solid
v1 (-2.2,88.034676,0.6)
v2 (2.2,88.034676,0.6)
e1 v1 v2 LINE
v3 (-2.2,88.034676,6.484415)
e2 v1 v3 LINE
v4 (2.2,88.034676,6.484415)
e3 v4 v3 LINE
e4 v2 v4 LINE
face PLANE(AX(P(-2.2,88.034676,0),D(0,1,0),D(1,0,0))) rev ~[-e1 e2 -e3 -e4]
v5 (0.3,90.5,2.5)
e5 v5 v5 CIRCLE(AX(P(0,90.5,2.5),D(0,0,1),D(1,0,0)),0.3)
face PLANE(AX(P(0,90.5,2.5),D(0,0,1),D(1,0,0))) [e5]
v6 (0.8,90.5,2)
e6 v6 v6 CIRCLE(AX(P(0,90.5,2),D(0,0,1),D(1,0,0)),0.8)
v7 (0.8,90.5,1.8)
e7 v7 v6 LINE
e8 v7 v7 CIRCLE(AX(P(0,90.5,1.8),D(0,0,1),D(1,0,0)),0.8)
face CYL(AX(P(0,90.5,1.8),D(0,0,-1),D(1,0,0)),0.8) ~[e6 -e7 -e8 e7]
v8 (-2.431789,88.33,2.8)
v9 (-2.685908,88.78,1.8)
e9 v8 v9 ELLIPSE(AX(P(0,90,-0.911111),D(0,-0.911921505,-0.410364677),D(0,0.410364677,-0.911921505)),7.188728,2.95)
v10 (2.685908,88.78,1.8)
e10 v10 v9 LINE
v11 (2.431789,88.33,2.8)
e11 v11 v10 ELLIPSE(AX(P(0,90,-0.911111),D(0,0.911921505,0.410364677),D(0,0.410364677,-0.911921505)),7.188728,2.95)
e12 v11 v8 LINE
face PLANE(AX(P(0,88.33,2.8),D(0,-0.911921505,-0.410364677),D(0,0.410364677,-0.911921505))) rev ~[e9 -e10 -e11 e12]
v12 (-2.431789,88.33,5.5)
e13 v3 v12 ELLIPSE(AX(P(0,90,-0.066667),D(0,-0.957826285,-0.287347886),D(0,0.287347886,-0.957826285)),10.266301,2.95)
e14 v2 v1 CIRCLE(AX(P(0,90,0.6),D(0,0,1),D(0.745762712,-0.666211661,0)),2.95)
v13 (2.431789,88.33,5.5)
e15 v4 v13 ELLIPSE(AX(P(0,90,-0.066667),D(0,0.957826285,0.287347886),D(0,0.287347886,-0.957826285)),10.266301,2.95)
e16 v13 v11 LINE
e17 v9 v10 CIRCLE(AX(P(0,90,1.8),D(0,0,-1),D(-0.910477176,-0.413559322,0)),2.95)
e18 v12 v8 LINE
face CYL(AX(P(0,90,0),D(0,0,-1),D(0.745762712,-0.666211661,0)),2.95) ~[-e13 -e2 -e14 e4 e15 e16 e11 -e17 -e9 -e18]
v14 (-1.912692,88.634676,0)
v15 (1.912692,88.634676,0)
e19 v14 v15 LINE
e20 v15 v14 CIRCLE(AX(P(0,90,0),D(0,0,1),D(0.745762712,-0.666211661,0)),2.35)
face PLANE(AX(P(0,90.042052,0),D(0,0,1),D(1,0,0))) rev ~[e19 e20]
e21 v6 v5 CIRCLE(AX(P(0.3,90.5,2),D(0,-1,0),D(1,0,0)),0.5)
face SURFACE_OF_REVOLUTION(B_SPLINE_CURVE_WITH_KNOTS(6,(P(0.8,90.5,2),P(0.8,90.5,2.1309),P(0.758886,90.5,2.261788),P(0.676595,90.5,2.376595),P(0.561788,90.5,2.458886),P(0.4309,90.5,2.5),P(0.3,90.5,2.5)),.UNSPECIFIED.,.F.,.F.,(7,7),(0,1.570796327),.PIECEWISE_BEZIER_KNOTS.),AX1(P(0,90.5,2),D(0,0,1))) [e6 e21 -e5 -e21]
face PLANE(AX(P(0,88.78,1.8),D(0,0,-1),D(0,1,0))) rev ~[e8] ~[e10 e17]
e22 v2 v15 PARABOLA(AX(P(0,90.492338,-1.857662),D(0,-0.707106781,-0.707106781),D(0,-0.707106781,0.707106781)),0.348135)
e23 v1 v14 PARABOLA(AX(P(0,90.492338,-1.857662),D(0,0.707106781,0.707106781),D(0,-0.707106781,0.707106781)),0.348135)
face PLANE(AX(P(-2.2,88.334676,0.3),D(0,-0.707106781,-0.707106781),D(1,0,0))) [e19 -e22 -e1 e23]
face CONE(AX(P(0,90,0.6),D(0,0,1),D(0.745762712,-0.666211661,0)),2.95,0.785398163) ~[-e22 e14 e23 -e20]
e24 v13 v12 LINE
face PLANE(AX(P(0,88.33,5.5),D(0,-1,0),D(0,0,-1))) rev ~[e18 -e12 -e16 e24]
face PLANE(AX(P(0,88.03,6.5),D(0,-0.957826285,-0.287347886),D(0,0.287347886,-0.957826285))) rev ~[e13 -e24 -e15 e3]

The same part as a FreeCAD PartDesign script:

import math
import FreeCAD as App
import Part
import Sketcher

V = App.Vector
Q = App.Units.Quantity


def edges_at(feature, points):
    """Names of the edges that pass closest to the given points."""
    edges = feature.Shape.Edges
    near = lambda p: min(range(len(edges)), key=lambda i: edges[i].distToShape(Part.Vertex(*p))[0])
    return sorted({f"Edge{near(p) + 1}" for p in points})

doc = App.newDocument("Part")
params = doc.addObject("Spreadsheet::Sheet", "Params")
for row, (alias, value) in enumerate([
    ("sketch1_radius", "2.95 mm"),
    ("sketch1_width", "4.4 mm"),
    ("pad1_length", "6.5 mm"),
    ("sketch2_height", "2.7 mm"),
    ("sketch2_height2", "4.7 mm"),
    ("sketch2_width", "5.22 mm"),
    ("sketch2_width2", "5.97 mm"),
    ("sketch3_diameter", "1.6 mm"),
    ("pad2_length", "0.7 mm"),
    ("fillet_radius", "0.5 mm"),
    ("chamfer_size", "0.6 mm"),
], start=1):
    params.set(f"A{row}", alias)
    params.set(f"B{row}", "=" + value)
    params.setAlias(f"B{row}", alias)

body = doc.addObject("PartDesign::Body", "Body")

sketch1 = body.newObject("Sketcher::SketchObject", "Sketch")
sketch1.AttachmentSupport = (doc.getObject("XY_Plane"), [""])
sketch1.MapMode = "FlatFace"
sketch1.addGeometry([
    Part.ArcOfCircle(Part.Circle(V(0, 0, 0), V(0, 0, 1), 3), math.radians(-42), math.radians(222)),
    Part.LineSegment(V(-2.2, -2, 0), V(2.2, -2, 0)),
], False)
sketch1.addConstraint([
    Sketcher.Constraint("Coincident", 0, 1, 1, 2),
    Sketcher.Constraint("Coincident", 1, 1, 0, 2),
    Sketcher.Constraint("Horizontal", 1),
    Sketcher.Constraint("Coincident", 0, 3, -1, 1),
    Sketcher.Constraint("Radius", 0, Q("2.95 mm")),
    Sketcher.Constraint("DistanceX", 1, 1, 1, 2, Q("4.4 mm")),
])
sketch1.setExpression("Constraints[4]", "Params.sketch1_radius")
sketch1.setExpression("Constraints[5]", "Params.sketch1_width")
pad1 = body.newObject("PartDesign::Pad", "Pad")
pad1.Profile = sketch1
pad1.setExpression("Length", "Params.pad1_length")

sketch2 = body.newObject("Sketcher::SketchObject", "Sketch001")
sketch2.AttachmentSupport = (doc.getObject("YZ_Plane"), [""])
sketch2.MapMode = "FlatFace"
sketch2.addGeometry([
    Part.LineSegment(V(-2, 6.5, 0), V(-1.7, 5.5, 0)),
    Part.LineSegment(V(-1.7, 5.5, 0), V(-1.7, 2.8, 0)),
    Part.LineSegment(V(-1.7, 2.8, 0), V(-1.2, 1.8, 0)),
    Part.LineSegment(V(-1.2, 1.8, 0), V(4, 1.8, 0)),
    Part.LineSegment(V(4, 1.8, 0), V(4, 6.5, 0)),
    Part.LineSegment(V(4, 6.5, 0), V(-2, 6.5, 0)),
], False)
sketch2.addConstraint([
    Sketcher.Constraint("Coincident", 0, 2, 1, 1),
    Sketcher.Constraint("Coincident", 1, 2, 2, 1),
    Sketcher.Constraint("Coincident", 2, 2, 3, 1),
    Sketcher.Constraint("Coincident", 3, 2, 4, 1),
    Sketcher.Constraint("Coincident", 4, 2, 5, 1),
    Sketcher.Constraint("Coincident", 5, 2, 0, 1),
    Sketcher.Constraint("Vertical", 1),
    Sketcher.Constraint("Horizontal", 3),
    Sketcher.Constraint("Vertical", 4),
    Sketcher.Constraint("Horizontal", 5),
    Sketcher.Constraint("DistanceY", 1, 2, 1, 1, Q("2.7 mm")),
    Sketcher.Constraint("DistanceY", 4, 1, 4, 2, Q("4.7 mm")),
    Sketcher.Constraint("DistanceX", -1, 1, 3, 2, Q("4 mm")),
    Sketcher.Constraint("DistanceY", 2, 2, 1, 2, Q("1 mm")),
    Sketcher.Constraint("DistanceX", 3, 1, 3, 2, Q("5.22 mm")),
    Sketcher.Constraint("DistanceX", 5, 2, 5, 1, Q("5.97 mm")),
    Sketcher.Constraint("DistanceY", -1, 1, 0, 2, Q("5.5 mm")),
    Sketcher.Constraint("DistanceX", 5, 2, 0, 2, Q("0.3 mm")),
])
sketch2.setExpression("Constraints[10]", "Params.sketch2_height")
sketch2.setExpression("Constraints[11]", "Params.sketch2_height2")
sketch2.setExpression("Constraints[14]", "Params.sketch2_width")
sketch2.setExpression("Constraints[15]", "Params.sketch2_width2")
pocket1 = body.newObject("PartDesign::Pocket", "Pocket")
pocket1.Profile = sketch2
pocket1.Type = "ThroughAll"
pocket1.Midplane = True

sketch3 = body.newObject("Sketcher::SketchObject", "Sketch002")
sketch3.AttachmentSupport = (doc.getObject("XY_Plane"), [""])
sketch3.MapMode = "FlatFace"
sketch3.AttachmentOffset = App.Placement(V(0, 0, 1.8), App.Rotation())
sketch3.addGeometry(Part.Circle(V(0, 0.5, 0), V(0, 0, 1), 0.8), False)
sketch3.addConstraint([
    Sketcher.Constraint("PointOnObject", 0, 3, -2),
    Sketcher.Constraint("Diameter", 0, Q("1.6 mm")),
    Sketcher.Constraint("DistanceY", -1, 1, 0, 3, Q("0.5 mm")),
])
sketch3.setExpression("Constraints[1]", "Params.sketch3_diameter")
pad2 = body.newObject("PartDesign::Pad", "Pad001")
pad2.Profile = sketch3
pad2.setExpression("Length", "Params.pad2_length")
doc.recompute()

fillet = body.newObject("PartDesign::Fillet", "Fillet")
fillet.Base = (pad2, edges_at(pad2, [(-0.8, 0.5, 2.5)]))
fillet.setExpression("Radius", "Params.fillet_radius")
doc.recompute()

chamfer = body.newObject("PartDesign::Chamfer", "Chamfer")
chamfer.Base = (fillet, edges_at(fillet, [(0, 2.95, 0), (0, -1.965, 0)]))
chamfer.setExpression("Size", "Params.chamfer_size")
body2 = doc.addObject("PartDesign::Body", "Body001")
doc.recompute()

body.Placement = App.Placement(V(0, 90, 0), App.Rotation(V(0, 0, 1), 0))
boolean = body2.newObject("PartDesign::Boolean", "Boolean")
boolean.Type = "Fuse"
boolean.addObjects([body])

doc.recompute()
